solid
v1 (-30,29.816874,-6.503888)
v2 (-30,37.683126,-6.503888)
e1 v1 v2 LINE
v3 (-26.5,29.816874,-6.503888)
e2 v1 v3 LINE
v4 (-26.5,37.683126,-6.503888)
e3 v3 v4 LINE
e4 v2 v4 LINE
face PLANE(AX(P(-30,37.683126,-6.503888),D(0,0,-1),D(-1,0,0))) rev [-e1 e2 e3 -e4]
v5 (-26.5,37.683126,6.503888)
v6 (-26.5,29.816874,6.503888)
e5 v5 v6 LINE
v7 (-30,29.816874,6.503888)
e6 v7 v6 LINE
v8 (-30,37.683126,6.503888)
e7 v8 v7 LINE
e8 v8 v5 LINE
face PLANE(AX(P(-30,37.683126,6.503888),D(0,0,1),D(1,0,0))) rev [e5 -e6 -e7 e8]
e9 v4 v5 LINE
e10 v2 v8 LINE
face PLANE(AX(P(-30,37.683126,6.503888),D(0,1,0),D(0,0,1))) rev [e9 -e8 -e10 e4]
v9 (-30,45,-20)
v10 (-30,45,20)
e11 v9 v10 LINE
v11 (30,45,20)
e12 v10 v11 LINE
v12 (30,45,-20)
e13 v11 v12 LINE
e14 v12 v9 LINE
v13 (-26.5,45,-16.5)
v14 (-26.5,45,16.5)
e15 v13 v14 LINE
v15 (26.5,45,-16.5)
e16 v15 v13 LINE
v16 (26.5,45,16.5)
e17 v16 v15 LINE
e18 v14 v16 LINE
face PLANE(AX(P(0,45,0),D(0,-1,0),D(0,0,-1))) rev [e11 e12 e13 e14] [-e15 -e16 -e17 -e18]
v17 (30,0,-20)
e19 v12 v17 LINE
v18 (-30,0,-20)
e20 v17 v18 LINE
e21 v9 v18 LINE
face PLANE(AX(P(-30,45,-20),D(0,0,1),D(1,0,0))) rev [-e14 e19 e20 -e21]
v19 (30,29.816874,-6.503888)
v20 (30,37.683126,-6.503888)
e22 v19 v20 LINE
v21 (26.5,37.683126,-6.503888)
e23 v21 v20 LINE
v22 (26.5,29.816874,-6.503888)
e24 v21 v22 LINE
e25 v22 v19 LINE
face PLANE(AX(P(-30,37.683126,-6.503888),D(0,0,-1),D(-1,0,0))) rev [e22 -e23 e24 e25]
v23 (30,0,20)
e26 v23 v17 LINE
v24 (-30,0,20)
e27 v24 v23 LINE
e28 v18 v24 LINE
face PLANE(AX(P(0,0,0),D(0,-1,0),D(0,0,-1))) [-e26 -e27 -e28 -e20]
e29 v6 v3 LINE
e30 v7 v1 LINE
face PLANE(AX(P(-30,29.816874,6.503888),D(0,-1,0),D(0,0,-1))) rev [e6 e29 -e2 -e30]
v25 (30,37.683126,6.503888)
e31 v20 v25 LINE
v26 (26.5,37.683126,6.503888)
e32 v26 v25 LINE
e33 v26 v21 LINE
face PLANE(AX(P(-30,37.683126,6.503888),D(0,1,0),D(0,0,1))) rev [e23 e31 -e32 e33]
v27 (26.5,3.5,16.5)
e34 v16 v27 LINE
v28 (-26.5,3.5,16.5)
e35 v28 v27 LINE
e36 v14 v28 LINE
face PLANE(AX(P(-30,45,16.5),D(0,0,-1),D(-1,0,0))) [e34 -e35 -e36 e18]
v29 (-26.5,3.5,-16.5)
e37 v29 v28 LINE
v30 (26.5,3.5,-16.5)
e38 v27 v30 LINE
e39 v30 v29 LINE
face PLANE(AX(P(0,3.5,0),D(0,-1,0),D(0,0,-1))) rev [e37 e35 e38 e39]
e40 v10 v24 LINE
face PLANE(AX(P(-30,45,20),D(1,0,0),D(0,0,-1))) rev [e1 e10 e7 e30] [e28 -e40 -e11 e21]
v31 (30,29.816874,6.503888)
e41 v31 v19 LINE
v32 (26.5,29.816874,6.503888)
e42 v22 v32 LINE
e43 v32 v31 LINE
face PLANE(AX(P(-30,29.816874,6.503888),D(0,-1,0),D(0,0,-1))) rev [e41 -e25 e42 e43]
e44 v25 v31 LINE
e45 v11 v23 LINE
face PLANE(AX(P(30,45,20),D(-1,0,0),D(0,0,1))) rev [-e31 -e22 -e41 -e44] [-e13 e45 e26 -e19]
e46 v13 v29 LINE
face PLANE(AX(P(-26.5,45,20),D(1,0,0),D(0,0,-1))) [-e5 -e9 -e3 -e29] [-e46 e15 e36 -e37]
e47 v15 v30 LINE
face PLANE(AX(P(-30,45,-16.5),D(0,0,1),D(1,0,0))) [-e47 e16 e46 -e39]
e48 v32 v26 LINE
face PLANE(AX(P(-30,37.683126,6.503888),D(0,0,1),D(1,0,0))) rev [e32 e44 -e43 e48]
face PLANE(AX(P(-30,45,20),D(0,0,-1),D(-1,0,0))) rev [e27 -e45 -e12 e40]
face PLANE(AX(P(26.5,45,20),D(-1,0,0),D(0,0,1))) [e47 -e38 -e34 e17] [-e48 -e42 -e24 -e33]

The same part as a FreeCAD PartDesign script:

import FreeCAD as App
import Part
import Sketcher
from FreeCAD import Vector


def faces_at(feature, points):
    """Names of the faces that lie closest to the given points."""
    faces = feature.Shape.Faces
    near = lambda p: min(range(len(faces)), key=lambda i: faces[i].distToShape(Part.Vertex(*p))[0])
    return sorted({f"Face{near(p) + 1}" for p in points})

doc = App.newDocument("Part")
params = doc.addObject("Spreadsheet::Sheet", "Params")
for row, (alias, value) in enumerate([
    ("sketch1_width", "60 mm"),
    ("sketch1_height", "40 mm"),
    ("pad1_length", "45 mm"),
    ("thickness_wall", "3.5 mm"),
], start=1):
    params.set(f"A{row}", alias)
    params.set(f"B{row}", "=" + value)
    params.setAlias(f"B{row}", alias)

body = doc.addObject("PartDesign::Body", "Body")

# Sketch on XZ plane
sketch1 = body.newObject("Sketcher::SketchObject", "Sketch")
sketch1.AttachmentSupport = (doc.getObject("XZ_Plane"), [""])
sketch1.MapMode = "FlatFace"
sketch1.addGeometry([
    Part.LineSegment(Vector(-30, -20, 0), Vector(-30, 20, 0)),
    Part.LineSegment(Vector(-30, 20, 0), Vector(30, 20, 0)),
    Part.LineSegment(Vector(30, 20, 0), Vector(30, -20, 0)),
    Part.LineSegment(Vector(30, -20, 0), Vector(-30, -20, 0)),
], False)
sketch1.addConstraint([
    Sketcher.Constraint("Coincident", 0, 2, 1, 1),
    Sketcher.Constraint("Coincident", 1, 2, 2, 1),
    Sketcher.Constraint("Coincident", 2, 2, 3, 1),
    Sketcher.Constraint("Coincident", 3, 2, 0, 1),
    Sketcher.Constraint("Vertical", 0),
    Sketcher.Constraint("Horizontal", 1),
    Sketcher.Constraint("Vertical", 2),
    Sketcher.Constraint("Horizontal", 3),
    Sketcher.Constraint("Symmetric", 0, 2, 2, 2, -1, 1),
    Sketcher.Constraint("DistanceX", 1, 1, 1, 2, 60.0),
    Sketcher.Constraint("DistanceY", 0, 1, 0, 2, 40.0),
])
sketch1.setExpression("Constraints[9]", "Params.sketch1_width")
sketch1.setExpression("Constraints[10]", "Params.sketch1_height")
pad1 = body.newObject("PartDesign::Pad", "Pad")
pad1.Profile = sketch1
pad1.setExpression("Length", "Params.pad1_length")
pad1.Reversed = True
doc.recompute()

thickness = body.newObject("PartDesign::Thickness", "Thickness")
thickness.Base = (pad1, faces_at(pad1, [(0, 45, 0)]))
thickness.setExpression("Value", "Params.thickness_wall")
thickness.Reversed = True
thickness.Join = "Intersection"

# Sketch on YZ plane
sketch2 = body.newObject("Sketcher::SketchObject", "Sketch001")
sketch2.AttachmentSupport = (doc.getObject("YZ_Plane"), [""])
sketch2.MapMode = "FlatFace"
sketch2.AttachmentOffset = App.Placement(Vector(0, 0, 30), App.Rotation())
sketch2.addGeometry([
    Part.LineSegment(Vector(38, 7, 0), Vector(30, 7, 0)),
    Part.LineSegment(Vector(30, 7, 0), Vector(30, -7, 0)),
    Part.LineSegment(Vector(30, -7, 0), Vector(38, -7, 0)),
    Part.LineSegment(Vector(38, -7, 0), Vector(38, 7, 0)),
], False)
sketch2.addConstraint([
    Sketcher.Constraint("Coincident", 0, 2, 1, 1),
    Sketcher.Constraint("Coincident", 1, 2, 2, 1),
    Sketcher.Constraint("Coincident", 2, 2, 3, 1),
    Sketcher.Constraint("Coincident", 3, 2, 0, 1),
    Sketcher.Constraint("Horizontal", 0),
    Sketcher.Constraint("Vertical", 1),
    Sketcher.Constraint("Horizontal", 2),
    Sketcher.Constraint("Vertical", 3),
    Sketcher.Constraint("DistanceX", 0, 2, 0, 1, 7.866251),
    Sketcher.Constraint("DistanceY", 1, 2, 1, 1, 13.007777),
    Sketcher.Constraint("DistanceY", -1, 1, 0, 2, 6.503888),
    Sketcher.Constraint("DistanceX", -1, 1, 0, 2, 29.816874),
])
pocket1 = body.newObject("PartDesign::Pocket", "Pocket")
pocket1.Profile = sketch2
pocket1.Type = "ThroughAll"

doc.recompute()
